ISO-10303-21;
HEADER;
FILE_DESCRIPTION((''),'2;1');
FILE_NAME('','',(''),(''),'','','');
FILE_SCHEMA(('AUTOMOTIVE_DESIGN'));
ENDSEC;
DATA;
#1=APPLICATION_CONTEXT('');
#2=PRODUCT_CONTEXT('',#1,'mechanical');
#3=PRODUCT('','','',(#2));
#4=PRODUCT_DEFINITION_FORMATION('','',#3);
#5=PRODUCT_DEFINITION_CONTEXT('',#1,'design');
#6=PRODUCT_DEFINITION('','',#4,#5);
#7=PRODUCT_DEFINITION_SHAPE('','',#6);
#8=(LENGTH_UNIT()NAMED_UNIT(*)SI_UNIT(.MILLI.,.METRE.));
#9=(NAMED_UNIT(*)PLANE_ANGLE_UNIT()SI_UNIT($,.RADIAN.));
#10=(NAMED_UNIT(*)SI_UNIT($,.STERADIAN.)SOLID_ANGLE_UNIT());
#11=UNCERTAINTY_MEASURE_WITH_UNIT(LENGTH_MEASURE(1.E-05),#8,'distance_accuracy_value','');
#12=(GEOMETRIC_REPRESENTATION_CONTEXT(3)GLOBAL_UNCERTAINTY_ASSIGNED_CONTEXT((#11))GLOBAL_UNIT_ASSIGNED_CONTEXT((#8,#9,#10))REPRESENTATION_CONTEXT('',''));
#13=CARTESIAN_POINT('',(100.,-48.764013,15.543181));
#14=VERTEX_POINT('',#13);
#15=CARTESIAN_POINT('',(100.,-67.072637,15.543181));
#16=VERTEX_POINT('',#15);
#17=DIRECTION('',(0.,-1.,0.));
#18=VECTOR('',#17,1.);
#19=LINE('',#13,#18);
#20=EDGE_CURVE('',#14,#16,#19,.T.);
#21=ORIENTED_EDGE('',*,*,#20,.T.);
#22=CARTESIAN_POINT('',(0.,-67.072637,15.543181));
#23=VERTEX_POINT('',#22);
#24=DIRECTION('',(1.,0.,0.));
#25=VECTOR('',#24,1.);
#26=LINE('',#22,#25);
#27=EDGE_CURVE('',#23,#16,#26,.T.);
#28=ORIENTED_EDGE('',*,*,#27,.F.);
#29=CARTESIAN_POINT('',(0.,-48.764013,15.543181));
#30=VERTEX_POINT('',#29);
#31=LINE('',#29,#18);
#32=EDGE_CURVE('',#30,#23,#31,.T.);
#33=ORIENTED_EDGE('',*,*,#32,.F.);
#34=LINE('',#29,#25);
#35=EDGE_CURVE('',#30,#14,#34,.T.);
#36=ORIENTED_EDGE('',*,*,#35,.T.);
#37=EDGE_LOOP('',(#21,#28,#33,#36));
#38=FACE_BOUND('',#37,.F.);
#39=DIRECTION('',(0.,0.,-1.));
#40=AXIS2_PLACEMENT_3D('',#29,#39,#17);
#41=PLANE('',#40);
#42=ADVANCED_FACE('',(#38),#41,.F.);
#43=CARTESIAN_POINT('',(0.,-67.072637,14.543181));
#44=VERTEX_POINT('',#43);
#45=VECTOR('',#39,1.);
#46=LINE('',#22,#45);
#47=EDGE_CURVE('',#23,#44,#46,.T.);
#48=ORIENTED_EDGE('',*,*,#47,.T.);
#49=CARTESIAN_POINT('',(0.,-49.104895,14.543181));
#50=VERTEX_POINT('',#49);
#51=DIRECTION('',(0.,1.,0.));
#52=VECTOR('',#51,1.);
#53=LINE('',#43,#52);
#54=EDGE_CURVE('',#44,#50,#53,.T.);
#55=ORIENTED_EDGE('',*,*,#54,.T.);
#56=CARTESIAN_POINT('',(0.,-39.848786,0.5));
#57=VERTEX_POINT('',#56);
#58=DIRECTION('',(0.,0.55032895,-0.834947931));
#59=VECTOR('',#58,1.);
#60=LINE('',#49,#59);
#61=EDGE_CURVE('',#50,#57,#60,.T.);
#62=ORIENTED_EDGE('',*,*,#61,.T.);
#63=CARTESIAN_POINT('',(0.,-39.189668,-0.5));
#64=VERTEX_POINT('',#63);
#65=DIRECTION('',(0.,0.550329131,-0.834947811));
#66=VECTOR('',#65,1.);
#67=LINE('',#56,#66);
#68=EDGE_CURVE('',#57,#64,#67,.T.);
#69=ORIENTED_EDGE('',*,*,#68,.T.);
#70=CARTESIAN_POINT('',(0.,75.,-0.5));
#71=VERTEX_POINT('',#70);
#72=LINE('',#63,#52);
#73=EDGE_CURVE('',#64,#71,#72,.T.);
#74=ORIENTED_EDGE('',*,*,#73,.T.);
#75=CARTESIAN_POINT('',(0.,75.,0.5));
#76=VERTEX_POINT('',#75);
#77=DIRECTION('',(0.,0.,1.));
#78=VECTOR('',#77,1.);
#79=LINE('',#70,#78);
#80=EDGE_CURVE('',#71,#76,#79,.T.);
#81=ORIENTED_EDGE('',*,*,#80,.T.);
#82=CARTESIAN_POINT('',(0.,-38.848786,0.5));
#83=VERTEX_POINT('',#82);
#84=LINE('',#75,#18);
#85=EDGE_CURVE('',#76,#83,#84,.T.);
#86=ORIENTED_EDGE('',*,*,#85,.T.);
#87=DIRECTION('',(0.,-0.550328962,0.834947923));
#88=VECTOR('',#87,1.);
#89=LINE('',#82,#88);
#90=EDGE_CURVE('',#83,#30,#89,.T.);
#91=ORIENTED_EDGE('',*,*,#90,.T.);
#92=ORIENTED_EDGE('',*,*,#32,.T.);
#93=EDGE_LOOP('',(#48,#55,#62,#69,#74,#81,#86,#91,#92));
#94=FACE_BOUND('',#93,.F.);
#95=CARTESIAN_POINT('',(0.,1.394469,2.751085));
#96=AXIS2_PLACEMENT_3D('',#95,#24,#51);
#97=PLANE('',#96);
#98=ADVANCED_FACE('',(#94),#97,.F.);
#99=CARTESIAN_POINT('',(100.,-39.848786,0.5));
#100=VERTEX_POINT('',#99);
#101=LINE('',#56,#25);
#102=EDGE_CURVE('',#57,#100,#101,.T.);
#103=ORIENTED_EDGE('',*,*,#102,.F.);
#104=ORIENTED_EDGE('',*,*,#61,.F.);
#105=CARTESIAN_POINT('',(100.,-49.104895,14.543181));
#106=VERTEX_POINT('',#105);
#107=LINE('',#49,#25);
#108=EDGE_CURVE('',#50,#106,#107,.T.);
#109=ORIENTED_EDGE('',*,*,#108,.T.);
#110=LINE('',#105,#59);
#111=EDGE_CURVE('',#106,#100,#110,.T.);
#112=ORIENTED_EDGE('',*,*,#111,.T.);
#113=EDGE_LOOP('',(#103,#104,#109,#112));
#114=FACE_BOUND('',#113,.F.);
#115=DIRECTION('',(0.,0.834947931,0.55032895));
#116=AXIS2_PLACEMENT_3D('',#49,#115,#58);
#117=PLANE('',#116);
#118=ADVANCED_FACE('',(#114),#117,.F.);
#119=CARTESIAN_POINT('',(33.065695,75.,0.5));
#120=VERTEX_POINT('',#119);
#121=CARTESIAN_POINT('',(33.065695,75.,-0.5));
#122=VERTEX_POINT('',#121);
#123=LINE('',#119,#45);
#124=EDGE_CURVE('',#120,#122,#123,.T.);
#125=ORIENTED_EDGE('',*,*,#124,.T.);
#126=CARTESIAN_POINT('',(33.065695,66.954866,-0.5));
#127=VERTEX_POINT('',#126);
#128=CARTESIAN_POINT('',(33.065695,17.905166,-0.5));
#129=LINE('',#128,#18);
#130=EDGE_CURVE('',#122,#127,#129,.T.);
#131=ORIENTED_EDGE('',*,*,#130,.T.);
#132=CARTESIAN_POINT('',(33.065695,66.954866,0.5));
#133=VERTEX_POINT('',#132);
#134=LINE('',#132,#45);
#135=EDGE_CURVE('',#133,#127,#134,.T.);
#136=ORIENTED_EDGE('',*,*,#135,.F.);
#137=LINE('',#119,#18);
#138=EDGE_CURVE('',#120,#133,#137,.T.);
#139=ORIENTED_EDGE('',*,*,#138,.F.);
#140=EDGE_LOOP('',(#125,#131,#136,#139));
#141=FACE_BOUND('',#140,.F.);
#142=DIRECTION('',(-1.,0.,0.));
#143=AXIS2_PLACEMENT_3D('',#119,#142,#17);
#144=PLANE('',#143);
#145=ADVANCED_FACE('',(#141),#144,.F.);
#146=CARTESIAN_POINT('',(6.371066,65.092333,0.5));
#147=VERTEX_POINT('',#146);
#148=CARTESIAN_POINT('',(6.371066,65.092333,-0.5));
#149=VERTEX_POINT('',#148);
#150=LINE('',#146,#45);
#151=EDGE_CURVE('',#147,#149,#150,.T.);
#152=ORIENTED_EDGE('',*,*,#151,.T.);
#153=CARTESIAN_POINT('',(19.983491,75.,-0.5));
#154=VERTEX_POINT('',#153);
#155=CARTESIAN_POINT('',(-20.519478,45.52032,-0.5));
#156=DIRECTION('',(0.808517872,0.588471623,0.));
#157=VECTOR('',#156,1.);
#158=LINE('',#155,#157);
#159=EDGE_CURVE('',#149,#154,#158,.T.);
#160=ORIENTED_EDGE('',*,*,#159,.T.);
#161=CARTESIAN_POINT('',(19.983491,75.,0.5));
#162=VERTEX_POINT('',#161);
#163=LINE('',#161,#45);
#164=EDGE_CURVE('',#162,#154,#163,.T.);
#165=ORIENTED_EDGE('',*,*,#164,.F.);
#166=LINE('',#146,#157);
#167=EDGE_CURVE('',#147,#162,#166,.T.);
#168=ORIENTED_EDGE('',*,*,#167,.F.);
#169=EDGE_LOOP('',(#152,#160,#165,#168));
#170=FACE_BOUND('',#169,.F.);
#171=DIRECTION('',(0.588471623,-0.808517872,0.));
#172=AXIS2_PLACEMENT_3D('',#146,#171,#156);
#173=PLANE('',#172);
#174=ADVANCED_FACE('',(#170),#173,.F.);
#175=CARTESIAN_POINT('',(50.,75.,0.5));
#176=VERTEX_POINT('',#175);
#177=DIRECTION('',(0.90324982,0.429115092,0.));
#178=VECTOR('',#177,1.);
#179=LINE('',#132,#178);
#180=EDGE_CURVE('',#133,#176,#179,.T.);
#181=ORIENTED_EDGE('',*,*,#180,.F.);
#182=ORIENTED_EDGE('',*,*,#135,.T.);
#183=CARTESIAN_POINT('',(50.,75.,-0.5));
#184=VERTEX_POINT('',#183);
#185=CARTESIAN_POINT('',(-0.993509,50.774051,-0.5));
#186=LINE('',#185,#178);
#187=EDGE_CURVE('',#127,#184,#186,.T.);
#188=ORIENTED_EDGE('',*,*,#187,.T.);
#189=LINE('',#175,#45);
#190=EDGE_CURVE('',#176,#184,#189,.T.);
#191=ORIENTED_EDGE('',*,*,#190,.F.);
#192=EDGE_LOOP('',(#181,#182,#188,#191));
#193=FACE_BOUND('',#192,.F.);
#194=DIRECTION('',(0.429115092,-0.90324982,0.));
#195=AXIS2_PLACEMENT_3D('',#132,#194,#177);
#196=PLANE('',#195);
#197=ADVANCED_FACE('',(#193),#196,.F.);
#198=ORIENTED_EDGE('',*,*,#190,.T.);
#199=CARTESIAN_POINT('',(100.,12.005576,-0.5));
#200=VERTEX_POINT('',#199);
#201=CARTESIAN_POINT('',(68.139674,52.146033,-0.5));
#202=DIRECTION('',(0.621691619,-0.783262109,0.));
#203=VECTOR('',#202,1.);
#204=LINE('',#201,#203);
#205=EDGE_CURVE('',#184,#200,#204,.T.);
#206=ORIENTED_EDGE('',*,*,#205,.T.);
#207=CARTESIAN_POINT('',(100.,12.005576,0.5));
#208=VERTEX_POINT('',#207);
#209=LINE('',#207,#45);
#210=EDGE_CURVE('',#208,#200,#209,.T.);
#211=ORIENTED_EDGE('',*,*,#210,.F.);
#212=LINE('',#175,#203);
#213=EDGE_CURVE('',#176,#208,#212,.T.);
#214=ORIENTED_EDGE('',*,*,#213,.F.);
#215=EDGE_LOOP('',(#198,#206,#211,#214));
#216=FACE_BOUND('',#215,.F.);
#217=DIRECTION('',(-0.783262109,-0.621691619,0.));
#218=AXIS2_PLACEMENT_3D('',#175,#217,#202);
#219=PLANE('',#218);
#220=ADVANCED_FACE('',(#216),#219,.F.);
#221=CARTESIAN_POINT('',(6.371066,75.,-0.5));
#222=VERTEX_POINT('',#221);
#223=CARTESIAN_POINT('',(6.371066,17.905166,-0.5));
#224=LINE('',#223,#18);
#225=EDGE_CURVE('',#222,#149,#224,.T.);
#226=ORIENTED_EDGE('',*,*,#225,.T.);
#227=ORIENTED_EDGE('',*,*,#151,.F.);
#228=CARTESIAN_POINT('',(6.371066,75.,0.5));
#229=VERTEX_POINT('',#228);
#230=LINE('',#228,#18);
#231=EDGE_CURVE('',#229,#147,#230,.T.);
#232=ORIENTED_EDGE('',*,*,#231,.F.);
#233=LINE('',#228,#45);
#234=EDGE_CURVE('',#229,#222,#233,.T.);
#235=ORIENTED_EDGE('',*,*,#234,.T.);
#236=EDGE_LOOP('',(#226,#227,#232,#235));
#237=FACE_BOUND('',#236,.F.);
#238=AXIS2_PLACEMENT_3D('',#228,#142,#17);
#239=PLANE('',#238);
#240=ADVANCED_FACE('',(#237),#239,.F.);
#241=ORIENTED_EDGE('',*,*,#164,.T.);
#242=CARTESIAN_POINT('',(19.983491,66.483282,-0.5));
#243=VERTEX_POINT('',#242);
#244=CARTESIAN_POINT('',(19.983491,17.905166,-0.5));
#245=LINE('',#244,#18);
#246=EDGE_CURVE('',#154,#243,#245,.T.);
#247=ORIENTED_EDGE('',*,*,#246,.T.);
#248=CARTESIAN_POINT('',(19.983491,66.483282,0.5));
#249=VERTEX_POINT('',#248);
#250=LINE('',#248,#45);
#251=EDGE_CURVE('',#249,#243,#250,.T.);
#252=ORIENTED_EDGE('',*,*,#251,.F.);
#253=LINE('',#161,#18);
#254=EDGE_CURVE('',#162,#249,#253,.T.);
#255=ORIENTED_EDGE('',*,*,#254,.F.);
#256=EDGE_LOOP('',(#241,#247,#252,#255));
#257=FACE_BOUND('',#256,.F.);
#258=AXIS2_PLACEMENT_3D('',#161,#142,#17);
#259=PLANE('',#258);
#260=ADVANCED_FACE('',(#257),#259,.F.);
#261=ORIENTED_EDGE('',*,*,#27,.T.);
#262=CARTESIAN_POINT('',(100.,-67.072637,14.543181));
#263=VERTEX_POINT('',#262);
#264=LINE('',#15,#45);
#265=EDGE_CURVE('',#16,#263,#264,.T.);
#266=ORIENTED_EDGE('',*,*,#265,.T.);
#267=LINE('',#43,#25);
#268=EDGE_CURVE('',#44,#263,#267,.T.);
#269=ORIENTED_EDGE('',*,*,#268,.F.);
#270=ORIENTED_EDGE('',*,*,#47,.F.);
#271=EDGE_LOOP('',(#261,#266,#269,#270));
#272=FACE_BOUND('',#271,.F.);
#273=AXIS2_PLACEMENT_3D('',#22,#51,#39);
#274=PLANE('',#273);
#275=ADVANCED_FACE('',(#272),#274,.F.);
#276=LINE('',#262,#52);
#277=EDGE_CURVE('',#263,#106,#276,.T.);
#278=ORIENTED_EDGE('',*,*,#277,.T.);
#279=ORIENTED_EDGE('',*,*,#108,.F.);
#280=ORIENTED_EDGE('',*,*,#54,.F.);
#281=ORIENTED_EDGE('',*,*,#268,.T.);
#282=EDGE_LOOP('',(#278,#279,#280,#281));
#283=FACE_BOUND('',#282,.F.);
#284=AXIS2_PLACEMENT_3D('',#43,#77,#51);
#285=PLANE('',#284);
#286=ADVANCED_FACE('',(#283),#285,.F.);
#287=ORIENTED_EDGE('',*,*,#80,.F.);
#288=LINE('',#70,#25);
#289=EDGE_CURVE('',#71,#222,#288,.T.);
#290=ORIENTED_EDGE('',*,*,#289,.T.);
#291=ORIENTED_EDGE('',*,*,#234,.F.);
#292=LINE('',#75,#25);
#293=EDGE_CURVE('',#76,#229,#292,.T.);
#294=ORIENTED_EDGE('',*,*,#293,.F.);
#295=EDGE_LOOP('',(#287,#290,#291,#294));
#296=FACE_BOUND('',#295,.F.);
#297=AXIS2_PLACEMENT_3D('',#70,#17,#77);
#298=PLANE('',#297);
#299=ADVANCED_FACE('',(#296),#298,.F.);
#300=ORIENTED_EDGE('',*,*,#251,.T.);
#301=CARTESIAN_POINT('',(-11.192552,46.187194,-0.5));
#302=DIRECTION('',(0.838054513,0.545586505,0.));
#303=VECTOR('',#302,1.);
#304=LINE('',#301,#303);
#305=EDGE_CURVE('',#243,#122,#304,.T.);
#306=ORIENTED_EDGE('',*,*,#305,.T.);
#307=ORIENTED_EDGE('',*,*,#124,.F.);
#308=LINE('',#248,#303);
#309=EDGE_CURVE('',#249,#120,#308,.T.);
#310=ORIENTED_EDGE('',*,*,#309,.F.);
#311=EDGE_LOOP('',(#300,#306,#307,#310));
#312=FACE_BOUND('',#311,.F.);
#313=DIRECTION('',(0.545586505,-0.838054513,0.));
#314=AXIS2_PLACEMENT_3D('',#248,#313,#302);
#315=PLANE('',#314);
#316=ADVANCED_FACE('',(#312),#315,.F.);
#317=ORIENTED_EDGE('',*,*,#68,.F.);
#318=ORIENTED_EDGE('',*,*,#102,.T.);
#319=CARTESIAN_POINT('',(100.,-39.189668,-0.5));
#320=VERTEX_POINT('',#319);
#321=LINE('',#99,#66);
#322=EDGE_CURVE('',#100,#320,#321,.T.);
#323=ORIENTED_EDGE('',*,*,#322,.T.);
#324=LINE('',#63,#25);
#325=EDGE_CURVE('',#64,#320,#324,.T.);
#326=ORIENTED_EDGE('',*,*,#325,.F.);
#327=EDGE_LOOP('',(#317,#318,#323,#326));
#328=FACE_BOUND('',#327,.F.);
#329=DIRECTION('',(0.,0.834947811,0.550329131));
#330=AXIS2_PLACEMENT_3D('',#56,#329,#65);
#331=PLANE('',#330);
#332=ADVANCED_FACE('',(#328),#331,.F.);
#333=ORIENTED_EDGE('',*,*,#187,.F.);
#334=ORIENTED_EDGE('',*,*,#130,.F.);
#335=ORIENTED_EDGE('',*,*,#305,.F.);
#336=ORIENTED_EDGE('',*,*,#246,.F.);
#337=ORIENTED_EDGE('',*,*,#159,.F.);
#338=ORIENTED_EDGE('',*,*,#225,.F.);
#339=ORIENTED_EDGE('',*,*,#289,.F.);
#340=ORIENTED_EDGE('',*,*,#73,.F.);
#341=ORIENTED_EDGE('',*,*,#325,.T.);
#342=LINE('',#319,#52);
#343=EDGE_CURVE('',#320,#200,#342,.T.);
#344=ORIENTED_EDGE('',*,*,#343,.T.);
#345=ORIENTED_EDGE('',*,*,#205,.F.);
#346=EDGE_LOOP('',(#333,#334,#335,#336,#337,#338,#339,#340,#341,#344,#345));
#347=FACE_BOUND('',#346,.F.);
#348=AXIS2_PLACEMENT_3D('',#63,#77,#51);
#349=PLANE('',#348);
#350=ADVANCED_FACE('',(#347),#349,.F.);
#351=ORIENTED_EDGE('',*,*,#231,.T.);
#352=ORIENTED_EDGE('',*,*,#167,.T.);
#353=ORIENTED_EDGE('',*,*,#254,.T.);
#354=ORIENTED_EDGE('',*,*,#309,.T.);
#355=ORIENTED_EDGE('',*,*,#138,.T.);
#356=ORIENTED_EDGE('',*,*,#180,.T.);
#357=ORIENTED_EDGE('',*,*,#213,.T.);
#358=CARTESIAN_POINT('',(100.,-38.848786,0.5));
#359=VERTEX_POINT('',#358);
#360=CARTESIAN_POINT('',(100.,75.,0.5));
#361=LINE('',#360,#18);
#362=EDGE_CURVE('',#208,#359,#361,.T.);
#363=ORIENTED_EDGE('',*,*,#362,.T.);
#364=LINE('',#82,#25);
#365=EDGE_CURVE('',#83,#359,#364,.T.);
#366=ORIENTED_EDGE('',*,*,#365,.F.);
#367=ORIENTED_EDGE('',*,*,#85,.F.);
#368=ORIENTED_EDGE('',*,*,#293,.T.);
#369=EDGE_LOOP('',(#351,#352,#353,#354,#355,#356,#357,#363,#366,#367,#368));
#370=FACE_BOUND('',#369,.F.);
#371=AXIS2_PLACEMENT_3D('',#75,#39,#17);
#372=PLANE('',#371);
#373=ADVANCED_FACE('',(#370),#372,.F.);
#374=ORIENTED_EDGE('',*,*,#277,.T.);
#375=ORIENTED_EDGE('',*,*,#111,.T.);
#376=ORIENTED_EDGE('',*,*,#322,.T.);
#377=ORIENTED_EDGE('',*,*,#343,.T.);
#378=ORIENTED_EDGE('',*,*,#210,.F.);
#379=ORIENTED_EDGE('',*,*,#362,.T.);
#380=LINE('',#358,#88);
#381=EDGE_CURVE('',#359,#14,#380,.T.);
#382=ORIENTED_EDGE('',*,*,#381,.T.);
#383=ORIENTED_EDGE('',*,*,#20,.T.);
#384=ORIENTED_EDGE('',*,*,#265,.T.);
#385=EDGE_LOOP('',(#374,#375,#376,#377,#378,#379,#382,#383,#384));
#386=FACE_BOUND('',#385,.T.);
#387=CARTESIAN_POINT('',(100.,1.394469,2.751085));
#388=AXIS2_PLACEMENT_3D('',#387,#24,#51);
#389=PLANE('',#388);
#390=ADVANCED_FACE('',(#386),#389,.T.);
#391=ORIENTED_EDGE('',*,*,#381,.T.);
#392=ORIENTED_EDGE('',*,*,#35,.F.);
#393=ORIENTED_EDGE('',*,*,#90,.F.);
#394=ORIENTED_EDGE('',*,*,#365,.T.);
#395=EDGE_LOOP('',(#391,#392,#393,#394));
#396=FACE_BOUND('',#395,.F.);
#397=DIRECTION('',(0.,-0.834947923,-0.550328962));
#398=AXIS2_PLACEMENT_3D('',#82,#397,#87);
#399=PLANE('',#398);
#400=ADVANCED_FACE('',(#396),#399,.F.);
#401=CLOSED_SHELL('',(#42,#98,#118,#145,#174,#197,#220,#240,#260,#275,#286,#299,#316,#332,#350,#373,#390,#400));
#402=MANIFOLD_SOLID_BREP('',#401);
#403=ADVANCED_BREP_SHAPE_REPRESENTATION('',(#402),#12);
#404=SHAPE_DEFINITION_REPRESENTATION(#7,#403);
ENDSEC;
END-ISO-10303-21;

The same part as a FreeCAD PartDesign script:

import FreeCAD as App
import Part
import Sketcher

V = App.Vector
Q = App.Units.Quantity


def add_polygon(sketch, points):
    """Adds a closed chain of lines whose ends are joined by coincident constraints."""
    first, n = sketch.GeometryCount, len(points)
    for a, b in zip(points, points[1:] + points[:1]):
        sketch.addGeometry(Part.LineSegment(App.Vector(*a, 0), App.Vector(*b, 0)), False)
    for i in range(n):
        sketch.addConstraint(Sketcher.Constraint("Coincident", first + i, 2, first + (i + 1) % n, 1))

doc = App.newDocument("Part")
body = doc.addObject("PartDesign::Body", "Body")

# Sketch on YZ plane
sketch1 = doc.addObject("Sketcher::SketchObject", "Sketch")
body.addObject(sketch1)
sketch1.AttachmentSupport = (doc.YZ_Plane, [""])
sketch1.MapMode = "FlatFace"
add_polygon(sketch1, [(75, 0.5), (-38.848786, 0.5), (-48.764013, 15.543181), (-67.072637, 15.543181), (-67.072637, 14.543181), (-49.104895, 14.543181), (-39.848786, 0.5), (-39.189668, -0.5), (75, -0.5)])  # lines 0-8
sketch1.addConstraint([
    Sketcher.Constraint("Horizontal", 0),
    Sketcher.Constraint("Horizontal", 2),
    Sketcher.Constraint("Vertical", 3),
    Sketcher.Constraint("Horizontal", 4),
    Sketcher.Constraint("Horizontal", 7),
    Sketcher.Constraint("Vertical", 8),
    Sketcher.Constraint("Parallel", 1, 5),
    Sketcher.Constraint("Parallel", 5, 6),
    Sketcher.Constraint("Horizontal", 0, 2, 5, 2),
    Sketcher.Constraint("Equal", 3, 8),
    Sketcher.Constraint("DistanceY", 3, 2, 3, 1, Q("1 mm")),
    Sketcher.Constraint("DistanceX", -1, 1, 7, 2, Q("75 mm")),
    Sketcher.Constraint("DistanceX", 5, 2, 0, 2, Q("1 mm")),
    Sketcher.Constraint("DistanceY", -1, 1, 0, 2, Q("0.5 mm")),
    Sketcher.Constraint("Distance", 1, Q("18.016909 mm")),
    Sketcher.Constraint("Distance", 5, Q("16.81923 mm")),
    Sketcher.Constraint("DistanceX", 0, 2, 0, 1, Q("113.848786 mm")),
    Sketcher.Constraint("DistanceX", 2, 2, 2, 1, Q("18.308624 mm")),
])
pad1 = doc.addObject("PartDesign::Pad", "Pad")
body.addObject(pad1)
pad1.Profile = sketch1
pad1.Length = 100

# Sketch on XY plane
sketch2 = doc.addObject("Sketcher::SketchObject", "Sketch001")
body.addObject(sketch2)
sketch2.AttachmentSupport = (doc.XY_Plane, [""])
sketch2.MapMode = "FlatFace"
sketch2.AttachmentOffset = App.Placement(V(0, 0, 0.5), App.Rotation())
add_polygon(sketch2, [(33.065695, 66.954866), (50, 75), (100, 12.005576), (155.00921, 119.249597), (16.864885, 99.318206), (6.371066, 75), (6.371066, 65.092333), (19.983491, 75), (19.983491, 66.483282), (33.065695, 75)])  # lines 0-9
sketch2.addConstraint([
    Sketcher.Constraint("Vertical", 5),
    Sketcher.Constraint("Vertical", 7),
    Sketcher.Constraint("Vertical", 9),
    Sketcher.Constraint("Horizontal", 0, 2, 4, 2),
    Sketcher.Constraint("Horizontal", 4, 2, 6, 2),
    Sketcher.Constraint("Horizontal", 6, 2, 8, 2),
    Sketcher.Constraint("DistanceX", -1, 1, 0, 2, Q("50 mm")),
    Sketcher.Constraint("DistanceY", -1, 1, 0, 2, Q("75 mm")),
    Sketcher.Constraint("DistanceX", -1, 1, 1, 2, Q("100 mm")),
    Sketcher.Constraint("Distance", 2, Q("120.529221 mm")),
    Sketcher.Constraint("Distance", 4, Q("26.485758 mm")),
    Sketcher.Constraint("Distance", 6, Q("16.83627 mm")),
    Sketcher.Constraint("DistanceY", 5, 2, 5, 1, Q("9.907667 mm")),
    Sketcher.Constraint("DistanceY", 7, 2, 7, 1, Q("8.516718 mm")),
    Sketcher.Constraint("DistanceY", 9, 2, 9, 1, Q("8.045134 mm")),
    Sketcher.Constraint("DistanceX", -1, 1, 2, 2, Q("155.00921 mm")),
    Sketcher.Constraint("DistanceX", -1, 1, 6, 2, Q("19.983491 mm")),
    Sketcher.Constraint("DistanceY", 1, 2, 3, 2, Q("87.31263 mm")),
    Sketcher.Constraint("DistanceX", 4, 2, 3, 2, Q("10.493819 mm")),
    Sketcher.Constraint("DistanceX", 4, 2, 8, 2, Q("26.694629 mm")),
])
pocket1 = doc.addObject("PartDesign::Pocket", "Pocket")
body.addObject(pocket1)
pocket1.Profile = sketch2
pocket1.Length = 25

doc.recompute()
